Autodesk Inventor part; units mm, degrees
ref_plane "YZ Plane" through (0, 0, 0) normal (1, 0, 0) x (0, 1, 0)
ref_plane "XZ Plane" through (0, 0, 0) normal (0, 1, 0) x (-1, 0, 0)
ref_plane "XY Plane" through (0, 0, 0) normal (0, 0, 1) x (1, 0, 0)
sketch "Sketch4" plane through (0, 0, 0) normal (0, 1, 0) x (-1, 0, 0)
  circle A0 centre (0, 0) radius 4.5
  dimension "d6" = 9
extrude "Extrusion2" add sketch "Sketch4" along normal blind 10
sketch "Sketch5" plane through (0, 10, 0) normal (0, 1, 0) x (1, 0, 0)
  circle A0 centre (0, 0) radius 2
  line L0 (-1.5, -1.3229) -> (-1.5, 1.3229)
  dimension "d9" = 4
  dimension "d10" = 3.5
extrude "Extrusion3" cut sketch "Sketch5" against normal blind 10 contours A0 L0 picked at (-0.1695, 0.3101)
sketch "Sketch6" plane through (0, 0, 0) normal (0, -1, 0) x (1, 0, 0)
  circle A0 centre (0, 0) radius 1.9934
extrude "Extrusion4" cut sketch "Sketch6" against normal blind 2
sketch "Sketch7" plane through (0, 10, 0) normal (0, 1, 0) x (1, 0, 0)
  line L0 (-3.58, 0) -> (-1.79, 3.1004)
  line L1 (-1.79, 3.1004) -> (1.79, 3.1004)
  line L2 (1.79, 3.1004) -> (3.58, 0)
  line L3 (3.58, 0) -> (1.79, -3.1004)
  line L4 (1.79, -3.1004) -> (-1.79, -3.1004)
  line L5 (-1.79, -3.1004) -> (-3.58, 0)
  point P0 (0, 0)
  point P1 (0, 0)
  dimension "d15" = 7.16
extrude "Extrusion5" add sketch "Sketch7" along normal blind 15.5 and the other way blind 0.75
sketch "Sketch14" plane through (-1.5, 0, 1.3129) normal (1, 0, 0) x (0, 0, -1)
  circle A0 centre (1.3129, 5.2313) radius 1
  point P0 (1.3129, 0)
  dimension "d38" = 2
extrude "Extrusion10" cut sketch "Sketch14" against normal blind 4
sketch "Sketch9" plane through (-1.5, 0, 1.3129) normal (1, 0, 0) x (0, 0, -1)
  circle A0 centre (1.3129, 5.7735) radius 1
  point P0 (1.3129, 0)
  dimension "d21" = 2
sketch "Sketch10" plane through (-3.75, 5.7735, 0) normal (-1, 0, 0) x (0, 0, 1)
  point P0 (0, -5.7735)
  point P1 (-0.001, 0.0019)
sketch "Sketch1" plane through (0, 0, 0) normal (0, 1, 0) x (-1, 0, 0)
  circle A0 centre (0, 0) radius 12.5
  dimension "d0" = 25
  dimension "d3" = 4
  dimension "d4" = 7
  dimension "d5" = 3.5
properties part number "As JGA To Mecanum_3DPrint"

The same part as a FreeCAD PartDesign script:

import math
import FreeCAD as App
import Part
import Sketcher
Q = App.Units.Quantity


def add_polygon(sketch, points):
    """Adds a closed chain of lines whose ends are joined by coincident constraints."""
    first, n = sketch.GeometryCount, len(points)
    for a, b in zip(points, points[1:] + points[:1]):
        sketch.addGeometry(Part.LineSegment(App.Vector(*a, 0), App.Vector(*b, 0)), False)
    for i in range(n):
        sketch.addConstraint(Sketcher.Constraint("Coincident", first + i, 2, first + (i + 1) % n, 1))

doc = App.newDocument("Part")
body = doc.addObject("PartDesign::Body", "Body")

# Sketch on XZ plane
sketch1 = body.newObject("Sketcher::SketchObject", "Sketch")
sketch1.AttachmentSupport = (doc.getObject("XZ_Plane"), [""])
sketch1.MapMode = "FlatFace"
sketch1.addGeometry(Part.Circle(App.Vector(0, 0, 0), App.Vector(0, 0, 1), 4.5), False)
sketch1.addConstraint(Sketcher.Constraint("Coincident", 0, 3, -1, 1))
sketch1.addConstraint(Sketcher.Constraint("Diameter", 0, Q("9 mm")))
pad1 = body.newObject("PartDesign::Pad", "Pad")
pad1.Profile = sketch1
pad1.Length = 10
pad1.Reversed = True

# Sketch on XZ plane
sketch2 = body.newObject("Sketcher::SketchObject", "Sketch001")
sketch2.AttachmentSupport = (doc.getObject("XZ_Plane"), [""])
sketch2.MapMode = "FlatFace"
sketch2.AttachmentOffset = App.Placement(App.Vector(0, 0, -10), App.Rotation())
sketch2.addGeometry(Part.ArcOfCircle(Part.Circle(App.Vector(0, 0, 0), App.Vector(0, 0, 1), 2), math.radians(-138.589855), math.radians(138.589855)), False)
sketch2.addGeometry(Part.LineSegment(App.Vector(-1.5, 1.3229, 0), App.Vector(-1.5, -1.3229, 0)), False)
sketch2.addConstraint(Sketcher.Constraint("Coincident", 0, 1, 1, 2))
sketch2.addConstraint(Sketcher.Constraint("Coincident", 1, 1, 0, 2))
sketch2.addConstraint(Sketcher.Constraint("Vertical", 1))
sketch2.addConstraint(Sketcher.Constraint("Coincident", 0, 3, -1, 1))
sketch2.addConstraint(Sketcher.Constraint("Radius", 0, Q("2 mm")))
sketch2.addConstraint(Sketcher.Constraint("DistanceX", 0, 1, -1, 1, Q("1.5 mm")))
pocket1 = body.newObject("PartDesign::Pocket", "Pocket")
pocket1.Profile = sketch2
pocket1.Length = 10
pocket1.Reversed = True

# Sketch on XZ plane
sketch3 = body.newObject("Sketcher::SketchObject", "Sketch002")
sketch3.AttachmentSupport = (doc.getObject("XZ_Plane"), [""])
sketch3.MapMode = "FlatFace"
sketch3.addGeometry(Part.Circle(App.Vector(0, 0, 0), App.Vector(0, 0, 1), 1.9934), False)
sketch3.addConstraint(Sketcher.Constraint("Coincident", 0, 3, -1, 1))
sketch3.addConstraint(Sketcher.Constraint("Diameter", 0, Q("3.9868 mm")))
pocket2 = body.newObject("PartDesign::Pocket", "Pocket001")
pocket2.Profile = sketch3
pocket2.Length = 2

# Sketch on XZ plane
sketch4 = body.newObject("Sketcher::SketchObject", "Sketch003")
sketch4.AttachmentSupport = (doc.getObject("XZ_Plane"), [""])
sketch4.MapMode = "FlatFace"
sketch4.AttachmentOffset = App.Placement(App.Vector(0, 0, -10), App.Rotation())
add_polygon(sketch4, [(-1.79, -3.1004), (-3.58, 0), (-1.79, 3.1004), (1.79, 3.1004), (3.58, 0), (1.79, -3.1004)])  # lines 0-5
sketch4.addConstraint(Sketcher.Constraint("Horizontal", 2))
sketch4.addConstraint(Sketcher.Constraint("Horizontal", 5))
sketch4.addConstraint(Sketcher.Constraint("Symmetric", 0, 2, 3, 2, -1, 1))
sketch4.addConstraint(Sketcher.Constraint("Symmetric", 1, 2, 4, 2, -1, 1))
sketch4.addConstraint(Sketcher.Constraint("PointOnObject", 0, 2, -1))
sketch4.addConstraint(Sketcher.Constraint("Parallel", 0, 3))
sketch4.addConstraint(Sketcher.Constraint("Vertical", 2, 2, 4, 2))
sketch4.addConstraint(Sketcher.Constraint("Angle", 0, Q("119.9998 deg")))
sketch4.addConstraint(Sketcher.Constraint("DistanceX", 0, 2, 3, 2, Q("7.16 mm")))
sketch4.addConstraint(Sketcher.Constraint("DistanceX", 2, 1, 2, 2, Q("3.58 mm")))
pad2 = body.newObject("PartDesign::Pad", "Pad001")
pad2.Profile = sketch4
pad2.Type = "TwoLengths"
pad2.Length = 15.5
pad2.Length2 = 0.75
pad2.Reversed = True

# Sketch on YZ plane
sketch5 = body.newObject("Sketcher::SketchObject", "Sketch004")
sketch5.AttachmentSupport = (doc.getObject("YZ_Plane"), [""])
sketch5.MapMode = "FlatFace"
sketch5.AttachmentOffset = App.Placement(App.Vector(0, 0, -1.5), App.Rotation())
sketch5.addGeometry(Part.Circle(App.Vector(5.2313, 0, 0), App.Vector(0, 0, 1), 1), False)
sketch5.addConstraint(Sketcher.Constraint("PointOnObject", 0, 3, -1))
sketch5.addConstraint(Sketcher.Constraint("Diameter", 0, Q("2 mm")))
sketch5.addConstraint(Sketcher.Constraint("DistanceX", -1, 1, 0, 3, Q("5.2313 mm")))
pocket3 = body.newObject("PartDesign::Pocket", "Pocket002")
pocket3.Profile = sketch5
pocket3.Length = 4

doc.recompute()
